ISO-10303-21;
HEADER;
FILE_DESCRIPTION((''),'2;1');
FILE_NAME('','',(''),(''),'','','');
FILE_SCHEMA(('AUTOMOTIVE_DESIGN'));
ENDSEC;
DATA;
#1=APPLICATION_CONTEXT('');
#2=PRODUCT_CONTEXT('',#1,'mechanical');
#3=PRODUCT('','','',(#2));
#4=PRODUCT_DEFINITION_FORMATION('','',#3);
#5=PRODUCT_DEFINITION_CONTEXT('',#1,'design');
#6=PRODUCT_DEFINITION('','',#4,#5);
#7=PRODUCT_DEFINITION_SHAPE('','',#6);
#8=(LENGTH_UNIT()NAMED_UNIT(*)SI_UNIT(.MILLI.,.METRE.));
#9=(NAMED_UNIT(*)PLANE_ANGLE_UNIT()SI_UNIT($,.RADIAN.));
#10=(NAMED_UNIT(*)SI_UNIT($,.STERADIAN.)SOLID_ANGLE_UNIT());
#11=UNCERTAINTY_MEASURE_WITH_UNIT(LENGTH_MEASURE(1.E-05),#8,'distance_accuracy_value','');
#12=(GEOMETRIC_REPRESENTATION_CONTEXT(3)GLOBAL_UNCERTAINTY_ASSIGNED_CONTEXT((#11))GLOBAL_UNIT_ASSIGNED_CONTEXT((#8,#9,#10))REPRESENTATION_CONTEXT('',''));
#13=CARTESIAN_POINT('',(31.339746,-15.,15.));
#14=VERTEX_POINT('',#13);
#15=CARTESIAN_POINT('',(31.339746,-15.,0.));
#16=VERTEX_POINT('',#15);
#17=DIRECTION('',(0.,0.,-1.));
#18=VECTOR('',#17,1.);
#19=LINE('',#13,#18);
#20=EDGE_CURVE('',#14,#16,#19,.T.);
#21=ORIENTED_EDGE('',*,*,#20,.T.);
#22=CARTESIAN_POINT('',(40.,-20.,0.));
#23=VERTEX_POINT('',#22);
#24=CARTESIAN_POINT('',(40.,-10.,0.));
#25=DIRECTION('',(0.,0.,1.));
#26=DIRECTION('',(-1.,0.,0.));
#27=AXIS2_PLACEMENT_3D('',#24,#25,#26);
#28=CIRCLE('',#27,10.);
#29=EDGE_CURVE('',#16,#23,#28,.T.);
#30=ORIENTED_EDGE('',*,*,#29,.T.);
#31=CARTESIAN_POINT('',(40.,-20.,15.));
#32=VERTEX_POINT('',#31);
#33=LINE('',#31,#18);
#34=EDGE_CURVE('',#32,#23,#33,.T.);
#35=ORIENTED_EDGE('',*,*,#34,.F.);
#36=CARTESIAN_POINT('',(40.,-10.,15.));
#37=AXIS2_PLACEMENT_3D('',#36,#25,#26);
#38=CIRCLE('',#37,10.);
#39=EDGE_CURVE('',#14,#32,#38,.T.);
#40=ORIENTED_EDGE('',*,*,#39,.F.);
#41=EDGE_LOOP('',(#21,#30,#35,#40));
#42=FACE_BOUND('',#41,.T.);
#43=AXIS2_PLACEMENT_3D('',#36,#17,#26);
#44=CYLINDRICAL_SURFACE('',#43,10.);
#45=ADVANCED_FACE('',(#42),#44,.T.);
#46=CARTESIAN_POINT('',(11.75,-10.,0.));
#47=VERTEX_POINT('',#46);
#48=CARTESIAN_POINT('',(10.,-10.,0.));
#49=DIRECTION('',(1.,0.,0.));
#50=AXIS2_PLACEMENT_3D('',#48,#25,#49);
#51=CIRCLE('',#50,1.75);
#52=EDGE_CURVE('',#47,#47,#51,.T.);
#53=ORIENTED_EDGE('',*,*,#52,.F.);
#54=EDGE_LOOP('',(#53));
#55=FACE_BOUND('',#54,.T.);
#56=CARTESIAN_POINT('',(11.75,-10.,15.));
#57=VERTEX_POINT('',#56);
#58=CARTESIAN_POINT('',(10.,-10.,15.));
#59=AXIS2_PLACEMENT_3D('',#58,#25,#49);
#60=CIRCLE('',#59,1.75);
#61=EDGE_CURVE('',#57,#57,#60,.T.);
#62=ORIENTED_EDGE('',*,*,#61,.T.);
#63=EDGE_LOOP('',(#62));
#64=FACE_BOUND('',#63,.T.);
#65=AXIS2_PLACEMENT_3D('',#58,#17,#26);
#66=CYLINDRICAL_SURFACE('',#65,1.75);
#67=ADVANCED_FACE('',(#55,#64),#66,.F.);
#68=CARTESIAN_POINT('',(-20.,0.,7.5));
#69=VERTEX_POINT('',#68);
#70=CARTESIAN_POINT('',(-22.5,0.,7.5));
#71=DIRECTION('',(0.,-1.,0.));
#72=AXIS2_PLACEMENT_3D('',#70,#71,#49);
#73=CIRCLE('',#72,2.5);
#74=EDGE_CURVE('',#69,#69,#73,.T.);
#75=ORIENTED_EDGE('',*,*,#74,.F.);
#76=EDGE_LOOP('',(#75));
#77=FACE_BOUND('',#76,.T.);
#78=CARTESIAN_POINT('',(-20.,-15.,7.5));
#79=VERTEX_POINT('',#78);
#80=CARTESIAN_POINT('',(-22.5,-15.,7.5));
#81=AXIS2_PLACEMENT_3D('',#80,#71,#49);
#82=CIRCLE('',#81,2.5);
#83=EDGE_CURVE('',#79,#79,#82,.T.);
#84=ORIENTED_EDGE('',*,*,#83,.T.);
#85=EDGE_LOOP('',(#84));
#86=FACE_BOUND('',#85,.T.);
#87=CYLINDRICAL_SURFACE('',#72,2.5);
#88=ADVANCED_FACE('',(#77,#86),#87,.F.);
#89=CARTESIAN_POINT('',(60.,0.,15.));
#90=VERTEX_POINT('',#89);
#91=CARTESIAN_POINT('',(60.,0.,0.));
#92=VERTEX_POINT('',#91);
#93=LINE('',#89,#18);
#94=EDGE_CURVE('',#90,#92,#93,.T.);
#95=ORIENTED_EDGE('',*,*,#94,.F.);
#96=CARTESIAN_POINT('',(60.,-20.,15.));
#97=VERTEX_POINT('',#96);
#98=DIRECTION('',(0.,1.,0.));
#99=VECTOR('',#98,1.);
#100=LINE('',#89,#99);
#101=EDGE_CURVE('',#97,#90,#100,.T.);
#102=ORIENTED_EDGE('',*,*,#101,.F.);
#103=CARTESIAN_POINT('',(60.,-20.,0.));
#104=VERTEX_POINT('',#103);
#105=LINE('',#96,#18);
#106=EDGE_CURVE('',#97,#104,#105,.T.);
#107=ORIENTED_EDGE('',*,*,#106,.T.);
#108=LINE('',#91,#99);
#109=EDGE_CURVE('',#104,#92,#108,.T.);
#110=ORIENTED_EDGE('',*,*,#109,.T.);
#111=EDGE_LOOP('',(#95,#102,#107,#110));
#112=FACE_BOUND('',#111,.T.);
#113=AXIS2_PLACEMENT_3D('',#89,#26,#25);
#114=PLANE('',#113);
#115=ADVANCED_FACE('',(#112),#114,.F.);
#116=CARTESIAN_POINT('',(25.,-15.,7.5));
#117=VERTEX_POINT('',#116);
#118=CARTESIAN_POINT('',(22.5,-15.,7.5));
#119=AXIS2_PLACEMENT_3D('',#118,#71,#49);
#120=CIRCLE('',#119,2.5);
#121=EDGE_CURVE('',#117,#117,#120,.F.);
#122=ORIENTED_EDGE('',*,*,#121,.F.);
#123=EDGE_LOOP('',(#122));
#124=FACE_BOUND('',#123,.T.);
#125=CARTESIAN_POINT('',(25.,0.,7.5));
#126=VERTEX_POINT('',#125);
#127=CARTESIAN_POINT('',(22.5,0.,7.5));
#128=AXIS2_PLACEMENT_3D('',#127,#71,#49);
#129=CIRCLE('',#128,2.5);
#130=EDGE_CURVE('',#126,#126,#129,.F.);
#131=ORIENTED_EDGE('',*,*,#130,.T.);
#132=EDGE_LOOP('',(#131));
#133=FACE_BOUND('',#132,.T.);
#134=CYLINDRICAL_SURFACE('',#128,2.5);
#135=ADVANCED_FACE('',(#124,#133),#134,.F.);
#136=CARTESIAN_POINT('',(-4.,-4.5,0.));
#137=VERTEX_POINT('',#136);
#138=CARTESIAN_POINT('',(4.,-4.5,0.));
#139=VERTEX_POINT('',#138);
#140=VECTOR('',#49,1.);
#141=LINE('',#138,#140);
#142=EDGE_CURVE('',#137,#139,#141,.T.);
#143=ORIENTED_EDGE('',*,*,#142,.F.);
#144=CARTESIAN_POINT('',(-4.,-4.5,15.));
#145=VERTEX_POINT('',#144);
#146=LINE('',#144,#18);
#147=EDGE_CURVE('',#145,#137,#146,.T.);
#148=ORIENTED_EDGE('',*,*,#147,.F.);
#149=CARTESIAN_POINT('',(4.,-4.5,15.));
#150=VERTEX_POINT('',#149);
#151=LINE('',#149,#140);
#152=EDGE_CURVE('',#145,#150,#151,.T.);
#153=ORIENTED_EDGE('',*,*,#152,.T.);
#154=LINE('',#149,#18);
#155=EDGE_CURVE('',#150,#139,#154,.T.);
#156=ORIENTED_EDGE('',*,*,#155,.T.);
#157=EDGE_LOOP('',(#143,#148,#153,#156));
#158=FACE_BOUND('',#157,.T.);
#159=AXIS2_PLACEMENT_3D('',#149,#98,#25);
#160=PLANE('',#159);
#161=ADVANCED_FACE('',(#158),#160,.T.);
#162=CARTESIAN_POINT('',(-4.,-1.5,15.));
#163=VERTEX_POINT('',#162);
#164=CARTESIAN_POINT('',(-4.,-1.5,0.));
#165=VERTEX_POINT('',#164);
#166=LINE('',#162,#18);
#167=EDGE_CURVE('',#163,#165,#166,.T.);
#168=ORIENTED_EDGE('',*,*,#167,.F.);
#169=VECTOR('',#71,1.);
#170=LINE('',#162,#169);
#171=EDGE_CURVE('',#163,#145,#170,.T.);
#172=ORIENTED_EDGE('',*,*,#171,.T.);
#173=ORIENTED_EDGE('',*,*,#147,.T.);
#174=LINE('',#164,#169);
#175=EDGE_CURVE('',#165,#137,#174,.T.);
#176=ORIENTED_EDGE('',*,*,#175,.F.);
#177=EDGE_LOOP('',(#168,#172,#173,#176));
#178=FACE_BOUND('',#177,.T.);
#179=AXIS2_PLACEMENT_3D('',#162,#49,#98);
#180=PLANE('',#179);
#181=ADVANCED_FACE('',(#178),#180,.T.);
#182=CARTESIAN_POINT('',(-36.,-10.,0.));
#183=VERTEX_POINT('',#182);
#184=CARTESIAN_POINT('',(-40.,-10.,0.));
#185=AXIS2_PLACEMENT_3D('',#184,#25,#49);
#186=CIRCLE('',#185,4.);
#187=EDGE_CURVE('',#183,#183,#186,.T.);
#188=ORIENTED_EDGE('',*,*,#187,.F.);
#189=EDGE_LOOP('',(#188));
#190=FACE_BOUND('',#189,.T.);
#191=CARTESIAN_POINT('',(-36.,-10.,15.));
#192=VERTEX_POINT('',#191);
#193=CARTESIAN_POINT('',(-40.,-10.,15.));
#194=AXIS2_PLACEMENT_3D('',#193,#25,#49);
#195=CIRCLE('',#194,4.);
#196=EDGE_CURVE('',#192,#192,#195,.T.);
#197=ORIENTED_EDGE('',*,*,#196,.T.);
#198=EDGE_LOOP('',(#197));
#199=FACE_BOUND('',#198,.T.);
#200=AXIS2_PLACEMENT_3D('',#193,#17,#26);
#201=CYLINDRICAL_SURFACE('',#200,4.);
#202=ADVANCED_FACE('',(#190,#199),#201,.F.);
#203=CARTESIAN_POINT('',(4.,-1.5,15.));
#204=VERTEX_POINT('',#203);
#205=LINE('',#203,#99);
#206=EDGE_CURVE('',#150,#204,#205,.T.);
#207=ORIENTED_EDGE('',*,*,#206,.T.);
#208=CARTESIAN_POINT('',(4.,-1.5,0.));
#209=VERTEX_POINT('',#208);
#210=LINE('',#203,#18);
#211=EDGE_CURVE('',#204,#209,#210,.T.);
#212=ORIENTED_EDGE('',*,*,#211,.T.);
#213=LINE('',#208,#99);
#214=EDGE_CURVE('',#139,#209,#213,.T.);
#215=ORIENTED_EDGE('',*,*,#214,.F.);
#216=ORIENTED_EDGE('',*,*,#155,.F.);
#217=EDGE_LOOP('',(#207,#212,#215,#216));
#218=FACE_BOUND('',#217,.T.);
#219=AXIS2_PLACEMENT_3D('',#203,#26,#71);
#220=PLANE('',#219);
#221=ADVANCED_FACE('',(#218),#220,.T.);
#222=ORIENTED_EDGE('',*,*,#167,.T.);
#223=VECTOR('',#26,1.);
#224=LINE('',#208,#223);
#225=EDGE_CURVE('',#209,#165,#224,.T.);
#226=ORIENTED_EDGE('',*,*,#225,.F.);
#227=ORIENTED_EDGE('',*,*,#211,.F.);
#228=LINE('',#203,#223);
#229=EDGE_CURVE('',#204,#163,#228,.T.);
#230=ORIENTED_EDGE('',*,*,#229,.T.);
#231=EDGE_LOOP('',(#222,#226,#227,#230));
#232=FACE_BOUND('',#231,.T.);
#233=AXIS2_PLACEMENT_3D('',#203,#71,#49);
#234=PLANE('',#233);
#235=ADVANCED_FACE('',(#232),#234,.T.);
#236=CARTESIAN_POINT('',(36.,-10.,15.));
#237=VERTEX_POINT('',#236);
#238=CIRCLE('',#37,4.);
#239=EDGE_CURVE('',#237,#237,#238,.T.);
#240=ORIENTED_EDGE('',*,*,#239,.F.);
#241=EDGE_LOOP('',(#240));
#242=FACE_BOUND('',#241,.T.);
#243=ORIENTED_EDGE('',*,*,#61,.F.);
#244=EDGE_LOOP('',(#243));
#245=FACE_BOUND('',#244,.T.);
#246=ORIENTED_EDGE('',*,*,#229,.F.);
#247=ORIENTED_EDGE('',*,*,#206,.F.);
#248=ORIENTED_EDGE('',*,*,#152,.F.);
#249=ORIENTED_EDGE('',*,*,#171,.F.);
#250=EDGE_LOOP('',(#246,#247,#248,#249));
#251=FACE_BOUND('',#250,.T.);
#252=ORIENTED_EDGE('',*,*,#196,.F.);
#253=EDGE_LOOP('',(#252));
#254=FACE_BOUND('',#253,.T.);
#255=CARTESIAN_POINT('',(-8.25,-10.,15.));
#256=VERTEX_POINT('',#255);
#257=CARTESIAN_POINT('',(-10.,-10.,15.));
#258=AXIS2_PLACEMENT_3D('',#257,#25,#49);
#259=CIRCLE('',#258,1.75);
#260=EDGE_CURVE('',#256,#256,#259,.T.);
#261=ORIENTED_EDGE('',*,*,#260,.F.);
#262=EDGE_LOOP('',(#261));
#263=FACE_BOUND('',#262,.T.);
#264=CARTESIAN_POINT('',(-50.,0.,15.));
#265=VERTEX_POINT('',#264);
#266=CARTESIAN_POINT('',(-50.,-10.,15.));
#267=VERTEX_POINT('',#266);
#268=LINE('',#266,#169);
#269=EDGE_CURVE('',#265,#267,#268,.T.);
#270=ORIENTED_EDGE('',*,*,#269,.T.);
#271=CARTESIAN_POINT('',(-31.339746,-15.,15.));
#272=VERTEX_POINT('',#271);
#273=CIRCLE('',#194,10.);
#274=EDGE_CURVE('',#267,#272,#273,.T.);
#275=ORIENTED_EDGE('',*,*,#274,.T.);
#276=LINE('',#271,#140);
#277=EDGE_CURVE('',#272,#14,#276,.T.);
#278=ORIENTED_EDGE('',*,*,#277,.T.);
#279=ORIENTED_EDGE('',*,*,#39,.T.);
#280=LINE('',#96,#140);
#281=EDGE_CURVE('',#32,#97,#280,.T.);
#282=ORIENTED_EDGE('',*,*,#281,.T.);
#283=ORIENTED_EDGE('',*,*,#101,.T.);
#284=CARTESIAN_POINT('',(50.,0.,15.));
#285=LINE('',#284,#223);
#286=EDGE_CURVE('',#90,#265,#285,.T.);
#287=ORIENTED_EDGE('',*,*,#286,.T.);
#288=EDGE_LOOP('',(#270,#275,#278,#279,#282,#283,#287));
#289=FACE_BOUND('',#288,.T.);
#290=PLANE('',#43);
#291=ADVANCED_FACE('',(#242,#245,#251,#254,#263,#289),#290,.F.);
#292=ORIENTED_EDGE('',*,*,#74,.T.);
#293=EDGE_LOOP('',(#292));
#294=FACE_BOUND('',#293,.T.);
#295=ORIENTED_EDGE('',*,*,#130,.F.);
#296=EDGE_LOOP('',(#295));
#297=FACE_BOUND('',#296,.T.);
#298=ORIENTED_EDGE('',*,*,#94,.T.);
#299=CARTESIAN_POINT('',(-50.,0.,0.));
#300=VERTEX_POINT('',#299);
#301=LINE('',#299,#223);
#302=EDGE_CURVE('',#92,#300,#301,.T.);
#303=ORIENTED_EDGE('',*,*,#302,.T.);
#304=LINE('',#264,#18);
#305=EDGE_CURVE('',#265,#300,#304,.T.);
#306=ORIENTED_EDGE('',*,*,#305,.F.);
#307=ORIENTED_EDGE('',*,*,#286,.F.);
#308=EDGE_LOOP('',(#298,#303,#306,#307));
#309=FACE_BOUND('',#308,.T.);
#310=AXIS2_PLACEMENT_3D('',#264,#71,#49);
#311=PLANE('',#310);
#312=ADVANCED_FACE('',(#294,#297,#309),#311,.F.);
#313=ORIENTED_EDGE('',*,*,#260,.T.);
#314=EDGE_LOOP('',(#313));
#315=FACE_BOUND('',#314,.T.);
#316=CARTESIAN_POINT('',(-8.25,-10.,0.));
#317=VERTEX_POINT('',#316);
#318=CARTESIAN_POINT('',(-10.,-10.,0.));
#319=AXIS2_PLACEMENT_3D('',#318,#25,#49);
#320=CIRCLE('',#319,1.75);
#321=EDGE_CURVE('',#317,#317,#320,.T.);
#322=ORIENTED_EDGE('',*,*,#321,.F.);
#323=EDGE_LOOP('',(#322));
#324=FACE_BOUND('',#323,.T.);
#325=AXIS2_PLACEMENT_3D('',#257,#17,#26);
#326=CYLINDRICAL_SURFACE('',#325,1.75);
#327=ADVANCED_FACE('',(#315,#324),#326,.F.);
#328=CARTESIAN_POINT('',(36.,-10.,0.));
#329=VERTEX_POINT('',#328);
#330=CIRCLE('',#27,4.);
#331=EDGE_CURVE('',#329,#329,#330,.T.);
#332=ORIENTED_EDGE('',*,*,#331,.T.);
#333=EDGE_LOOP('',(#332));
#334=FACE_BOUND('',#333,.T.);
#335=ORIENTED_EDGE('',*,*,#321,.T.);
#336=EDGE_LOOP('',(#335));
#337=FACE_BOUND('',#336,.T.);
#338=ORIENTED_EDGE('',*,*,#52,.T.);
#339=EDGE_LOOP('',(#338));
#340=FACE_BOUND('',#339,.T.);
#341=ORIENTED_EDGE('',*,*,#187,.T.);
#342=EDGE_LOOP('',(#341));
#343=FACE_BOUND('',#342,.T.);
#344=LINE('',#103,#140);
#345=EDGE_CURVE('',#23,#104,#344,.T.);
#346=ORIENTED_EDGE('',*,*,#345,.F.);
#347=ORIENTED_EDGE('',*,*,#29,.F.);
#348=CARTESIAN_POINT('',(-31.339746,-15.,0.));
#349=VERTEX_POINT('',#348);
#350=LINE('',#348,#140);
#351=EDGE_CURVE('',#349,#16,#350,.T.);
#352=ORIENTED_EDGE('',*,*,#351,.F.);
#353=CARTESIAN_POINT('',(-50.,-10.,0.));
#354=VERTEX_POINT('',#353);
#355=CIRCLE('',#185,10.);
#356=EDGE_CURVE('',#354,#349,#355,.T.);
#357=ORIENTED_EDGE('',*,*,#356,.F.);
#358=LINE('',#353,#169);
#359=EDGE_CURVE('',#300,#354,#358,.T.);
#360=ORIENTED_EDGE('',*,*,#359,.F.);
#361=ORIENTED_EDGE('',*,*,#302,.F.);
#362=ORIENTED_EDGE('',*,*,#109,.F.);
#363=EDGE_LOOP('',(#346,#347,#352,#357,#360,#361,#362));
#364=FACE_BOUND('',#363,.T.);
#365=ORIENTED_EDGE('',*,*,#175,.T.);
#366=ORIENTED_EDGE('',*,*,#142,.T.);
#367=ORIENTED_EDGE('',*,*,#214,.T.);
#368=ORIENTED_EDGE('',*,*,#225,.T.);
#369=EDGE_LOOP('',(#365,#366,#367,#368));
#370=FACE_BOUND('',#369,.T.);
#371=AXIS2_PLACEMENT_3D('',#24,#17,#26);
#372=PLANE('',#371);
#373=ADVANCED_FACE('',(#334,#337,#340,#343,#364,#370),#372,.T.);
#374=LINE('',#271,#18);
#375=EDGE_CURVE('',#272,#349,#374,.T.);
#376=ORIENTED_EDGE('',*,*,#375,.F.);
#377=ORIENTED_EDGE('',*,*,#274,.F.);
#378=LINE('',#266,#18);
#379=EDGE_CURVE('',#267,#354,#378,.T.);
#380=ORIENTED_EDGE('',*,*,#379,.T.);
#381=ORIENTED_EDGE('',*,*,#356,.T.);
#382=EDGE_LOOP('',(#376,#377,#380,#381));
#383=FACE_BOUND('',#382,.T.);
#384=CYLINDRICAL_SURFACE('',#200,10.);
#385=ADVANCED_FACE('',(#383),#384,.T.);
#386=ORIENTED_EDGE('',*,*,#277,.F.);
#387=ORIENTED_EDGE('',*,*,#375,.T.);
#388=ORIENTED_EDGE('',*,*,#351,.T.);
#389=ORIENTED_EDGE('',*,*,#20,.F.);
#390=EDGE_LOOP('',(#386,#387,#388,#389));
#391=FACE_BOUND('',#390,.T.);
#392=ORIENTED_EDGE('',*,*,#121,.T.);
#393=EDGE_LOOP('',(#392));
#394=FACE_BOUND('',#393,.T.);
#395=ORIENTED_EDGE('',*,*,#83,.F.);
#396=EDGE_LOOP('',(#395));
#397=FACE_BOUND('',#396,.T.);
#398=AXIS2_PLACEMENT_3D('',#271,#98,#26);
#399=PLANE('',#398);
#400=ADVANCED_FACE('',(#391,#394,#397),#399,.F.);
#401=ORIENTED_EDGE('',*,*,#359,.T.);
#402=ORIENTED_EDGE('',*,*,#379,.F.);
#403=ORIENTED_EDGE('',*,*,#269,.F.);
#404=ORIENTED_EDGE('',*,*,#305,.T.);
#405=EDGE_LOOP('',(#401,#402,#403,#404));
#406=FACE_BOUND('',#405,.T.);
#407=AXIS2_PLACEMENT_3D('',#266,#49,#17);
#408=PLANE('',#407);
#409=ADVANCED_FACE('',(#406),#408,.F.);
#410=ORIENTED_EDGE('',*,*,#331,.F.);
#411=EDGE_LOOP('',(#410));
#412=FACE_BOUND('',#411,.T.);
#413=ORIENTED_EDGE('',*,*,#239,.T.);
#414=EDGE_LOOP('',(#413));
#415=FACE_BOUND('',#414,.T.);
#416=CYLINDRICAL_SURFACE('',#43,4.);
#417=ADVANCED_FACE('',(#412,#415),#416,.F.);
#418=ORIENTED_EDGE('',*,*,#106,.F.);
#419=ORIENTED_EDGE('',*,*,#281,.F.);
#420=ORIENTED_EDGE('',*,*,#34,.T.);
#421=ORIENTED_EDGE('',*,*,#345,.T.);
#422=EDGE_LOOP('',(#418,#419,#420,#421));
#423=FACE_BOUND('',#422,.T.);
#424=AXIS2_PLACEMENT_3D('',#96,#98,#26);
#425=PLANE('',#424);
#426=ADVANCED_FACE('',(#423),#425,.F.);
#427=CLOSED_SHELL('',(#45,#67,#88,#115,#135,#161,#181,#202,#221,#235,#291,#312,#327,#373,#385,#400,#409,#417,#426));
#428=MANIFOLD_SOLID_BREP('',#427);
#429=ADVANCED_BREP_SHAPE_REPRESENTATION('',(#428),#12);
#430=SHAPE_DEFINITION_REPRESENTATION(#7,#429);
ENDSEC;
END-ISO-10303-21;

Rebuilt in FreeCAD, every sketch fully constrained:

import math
import FreeCAD as App
import Part
import Sketcher
Q = App.Units.Quantity

doc = App.newDocument("Part")
body = doc.addObject("PartDesign::Body", "Body")

# Sketch on XY plane
sketch1 = body.newObject("Sketcher::SketchObject", "Sketch")
sketch1.AttachmentSupport = (doc.getObject("XY_Plane"), [""])
sketch1.MapMode = "FlatFace"
sketch1.addGeometry(Part.LineSegment(App.Vector(-50, 0, 0), App.Vector(-50, -10, 0)), False)
sketch1.addGeometry(Part.ArcOfCircle(Part.Circle(App.Vector(-40, -10, 0), App.Vector(0, 0, 1), 10), math.radians(180), math.radians(330)), False)
sketch1.addGeometry(Part.LineSegment(App.Vector(-31.339746, -15, 0), App.Vector(31.339746, -15, 0)), False)
sketch1.addGeometry(Part.ArcOfCircle(Part.Circle(App.Vector(40, -10, 0), App.Vector(0, 0, 1), 10), math.radians(-150), math.radians(-90)), False)
sketch1.addGeometry(Part.LineSegment(App.Vector(40, -20, 0), App.Vector(60, -20, 0)), False)
sketch1.addGeometry(Part.LineSegment(App.Vector(60, -20, 0), App.Vector(60, 0, 0)), False)
sketch1.addGeometry(Part.LineSegment(App.Vector(60, 0, 0), App.Vector(-50, 0, 0)), False)
sketch1.addGeometry(Part.Circle(App.Vector(40, -10, 0), App.Vector(0, 0, 1), 4), False)
sketch1.addGeometry(Part.Circle(App.Vector(10, -10, 0), App.Vector(0, 0, 1), 1.75), False)
sketch1.addGeometry(Part.Circle(App.Vector(-10, -10, 0), App.Vector(0, 0, 1), 1.75), False)
sketch1.addGeometry(Part.Circle(App.Vector(-40, -10, 0), App.Vector(0, 0, 1), 4), False)
sketch1.addGeometry(Part.LineSegment(App.Vector(-4, -4.5, 0), App.Vector(-4, -1.5, 0)), False)
sketch1.addGeometry(Part.LineSegment(App.Vector(-4, -1.5, 0), App.Vector(4, -1.5, 0)), False)
sketch1.addGeometry(Part.LineSegment(App.Vector(4, -1.5, 0), App.Vector(4, -4.5, 0)), False)
sketch1.addGeometry(Part.LineSegment(App.Vector(4, -4.5, 0), App.Vector(-4, -4.5, 0)), False)
sketch1.addConstraint(Sketcher.Constraint("Tangent", 0, 2, 1, 1))
sketch1.addConstraint(Sketcher.Constraint("Coincident", 1, 2, 2, 1))
sketch1.addConstraint(Sketcher.Constraint("Coincident", 2, 2, 3, 1))
sketch1.addConstraint(Sketcher.Constraint("Tangent", 3, 2, 4, 1))
sketch1.addConstraint(Sketcher.Constraint("Coincident", 4, 2, 5, 1))
sketch1.addConstraint(Sketcher.Constraint("Coincident", 5, 2, 6, 1))
sketch1.addConstraint(Sketcher.Constraint("Coincident", 6, 2, 0, 1))
sketch1.addConstraint(Sketcher.Constraint("Coincident", 11, 2, 12, 1))
sketch1.addConstraint(Sketcher.Constraint("Coincident", 12, 2, 13, 1))
sketch1.addConstraint(Sketcher.Constraint("Coincident", 13, 2, 14, 1))
sketch1.addConstraint(Sketcher.Constraint("Coincident", 14, 2, 11, 1))
sketch1.addConstraint(Sketcher.Constraint("Vertical", 0))
sketch1.addConstraint(Sketcher.Constraint("Horizontal", 2))
sketch1.addConstraint(Sketcher.Constraint("Horizontal", 4))
sketch1.addConstraint(Sketcher.Constraint("Vertical", 5))
sketch1.addConstraint(Sketcher.Constraint("Horizontal", 6))
sketch1.addConstraint(Sketcher.Constraint("Vertical", 11))
sketch1.addConstraint(Sketcher.Constraint("Horizontal", 12))
sketch1.addConstraint(Sketcher.Constraint("Vertical", 13))
sketch1.addConstraint(Sketcher.Constraint("Horizontal", 14))
sketch1.addConstraint(Sketcher.Constraint("Coincident", 7, 3, 3, 3))
sketch1.addConstraint(Sketcher.Constraint("Coincident", 10, 3, 1, 3))
sketch1.addConstraint(Sketcher.Constraint("Equal", 1, 3))
sketch1.addConstraint(Sketcher.Constraint("Equal", 8, 9))
sketch1.addConstraint(Sketcher.Constraint("Equal", 7, 10))
sketch1.addConstraint(Sketcher.Constraint("Symmetric", 1, 3, 3, 3, -2))
sketch1.addConstraint(Sketcher.Constraint("Symmetric", 8, 3, 9, 3, -2))
sketch1.addConstraint(Sketcher.Constraint("PointOnObject", 5, 2, -1))
sketch1.addConstraint(Sketcher.Constraint("Horizontal", 7, 3, 8, 3))
sketch1.addConstraint(Sketcher.Constraint("Equal", 4, 5))
sketch1.addConstraint(Sketcher.Constraint("Diameter", 7, Q("8 mm")))
sketch1.addConstraint(Sketcher.Constraint("Radius", 1, Q("10 mm")))
sketch1.addConstraint(Sketcher.Constraint("Diameter", 8, Q("3.5 mm")))
sketch1.addConstraint(Sketcher.Constraint("DistanceX", 4, 1, 4, 2, Q("20 mm")))
sketch1.addConstraint(Sketcher.Constraint("DistanceX", 6, 2, 6, 1, Q("110 mm")))
sketch1.addConstraint(Sketcher.Constraint("DistanceX", 12, 1, 12, 2, Q("8 mm")))
sketch1.addConstraint(Sketcher.Constraint("DistanceY", 11, 1, 11, 2, Q("3 mm")))
sketch1.addConstraint(Sketcher.Constraint("DistanceX", -1, 1, 8, 3, Q("10 mm")))
sketch1.addConstraint(Sketcher.Constraint("DistanceY", 1, 2, -1, 1, Q("15 mm")))
sketch1.addConstraint(Sketcher.Constraint("DistanceX", 11, 2, -1, 1, Q("4 mm")))
sketch1.addConstraint(Sketcher.Constraint("DistanceY", 11, 2, -1, 1, Q("1.5 mm")))
pad1 = body.newObject("PartDesign::Pad", "Pad")
pad1.Profile = sketch1
pad1.Length = 15

# Sketch on XZ plane
sketch2 = body.newObject("Sketcher::SketchObject", "Sketch001")
sketch2.AttachmentSupport = (doc.getObject("XZ_Plane"), [""])
sketch2.MapMode = "FlatFace"
sketch2.AttachmentOffset = App.Placement(App.Vector(0, 0, 15), App.Rotation())
sketch2.addGeometry(Part.Circle(App.Vector(22.5, 7.5, 0), App.Vector(0, 0, 1), 2.5), False)
sketch2.addGeometry(Part.Circle(App.Vector(-22.5, 7.5, 0), App.Vector(0, 0, 1), 2.5), False)
sketch2.addConstraint(Sketcher.Constraint("Equal", 0, 1))
sketch2.addConstraint(Sketcher.Constraint("Symmetric", 0, 3, 1, 3, -2))
sketch2.addConstraint(Sketcher.Constraint("Diameter", 0, Q("5 mm")))
sketch2.addConstraint(Sketcher.Constraint("DistanceX", 1, 3, 0, 3, Q("45 mm")))
sketch2.addConstraint(Sketcher.Constraint("DistanceY", -1, 1, 0, 3, Q("7.5 mm")))
pocket1 = body.newObject("PartDesign::Pocket", "Pocket")
pocket1.Profile = sketch2
pocket1.Length = 15

doc.recompute()
